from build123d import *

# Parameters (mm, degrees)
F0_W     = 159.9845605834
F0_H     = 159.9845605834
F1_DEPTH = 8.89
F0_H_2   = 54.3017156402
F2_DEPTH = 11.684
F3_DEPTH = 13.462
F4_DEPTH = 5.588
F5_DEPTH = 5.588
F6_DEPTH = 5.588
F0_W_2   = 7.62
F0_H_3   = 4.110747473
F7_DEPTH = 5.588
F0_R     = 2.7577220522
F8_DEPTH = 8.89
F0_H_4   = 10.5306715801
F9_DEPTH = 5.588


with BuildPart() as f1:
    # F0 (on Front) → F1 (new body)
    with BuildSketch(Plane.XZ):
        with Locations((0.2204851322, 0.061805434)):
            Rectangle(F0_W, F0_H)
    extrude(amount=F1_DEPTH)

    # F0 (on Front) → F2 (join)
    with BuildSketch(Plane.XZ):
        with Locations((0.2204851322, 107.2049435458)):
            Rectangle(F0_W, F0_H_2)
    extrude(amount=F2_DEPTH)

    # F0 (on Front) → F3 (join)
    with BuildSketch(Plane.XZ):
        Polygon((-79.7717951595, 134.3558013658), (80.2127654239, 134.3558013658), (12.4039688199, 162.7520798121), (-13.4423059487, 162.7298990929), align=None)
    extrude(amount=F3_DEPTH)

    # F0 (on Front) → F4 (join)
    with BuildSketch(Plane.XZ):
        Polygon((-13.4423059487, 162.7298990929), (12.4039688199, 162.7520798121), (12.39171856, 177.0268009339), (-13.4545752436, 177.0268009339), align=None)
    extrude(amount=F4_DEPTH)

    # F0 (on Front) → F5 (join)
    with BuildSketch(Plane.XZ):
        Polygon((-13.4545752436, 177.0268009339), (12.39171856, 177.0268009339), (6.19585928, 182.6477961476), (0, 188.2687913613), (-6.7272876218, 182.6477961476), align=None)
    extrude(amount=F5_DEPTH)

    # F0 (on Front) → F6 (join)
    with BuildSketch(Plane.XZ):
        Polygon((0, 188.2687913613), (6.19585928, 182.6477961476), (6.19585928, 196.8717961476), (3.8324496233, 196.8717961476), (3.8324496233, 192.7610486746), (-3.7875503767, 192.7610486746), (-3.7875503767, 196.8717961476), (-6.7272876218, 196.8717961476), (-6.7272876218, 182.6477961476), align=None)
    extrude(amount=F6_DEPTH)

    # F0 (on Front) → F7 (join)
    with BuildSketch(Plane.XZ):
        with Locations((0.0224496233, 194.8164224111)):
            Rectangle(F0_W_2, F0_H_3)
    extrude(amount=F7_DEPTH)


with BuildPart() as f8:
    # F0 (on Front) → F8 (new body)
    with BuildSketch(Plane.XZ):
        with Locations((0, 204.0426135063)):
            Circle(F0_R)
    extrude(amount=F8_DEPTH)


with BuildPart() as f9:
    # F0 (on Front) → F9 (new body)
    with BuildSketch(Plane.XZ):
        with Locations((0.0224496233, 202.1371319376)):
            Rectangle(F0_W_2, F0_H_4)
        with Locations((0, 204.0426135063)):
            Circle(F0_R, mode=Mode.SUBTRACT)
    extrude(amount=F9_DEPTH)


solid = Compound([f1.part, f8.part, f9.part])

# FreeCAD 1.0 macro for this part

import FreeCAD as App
import Part
import Sketcher

V = App.Vector
Q = App.Units.Quantity

doc = App.newDocument("Part")
params = doc.addObject("Spreadsheet::Sheet", "Params")
for row, (alias, value) in enumerate([
    ("pad1_length", "0.35 in"),
    ("pad2_length", "0.46 in"),
    ("pad3_length", "0.53 in"),
    ("pad4_length", "0.22 in"),
    ("pad5_length", "0.22 in"),
    ("sketch6_width", "0.3 in"),
    ("sketch6_height", "0.56 in"),
    ("pad6_length", "0.22 in"),
    ("sketch7_width", "0.3 in"),
    ("pad7_length", "0.22 in"),
    ("pad8_length", "0.35 in"),
    ("sketch9_width", "0.3 in"),
    ("pad9_length", "0.22 in"),
], start=1):
    params.set(f"A{row}", alias)
    params.set(f"B{row}", "=" + value)
    params.setAlias(f"B{row}", alias)

body = doc.addObject("PartDesign::Body", "Body")

# Sketch on XZ plane
sketch1 = body.newObject("Sketcher::SketchObject", "Sketch")
sketch1.AttachmentSupport = (doc.getObject("XZ_Plane"), [""])
sketch1.MapMode = "FlatFace"
sketch1.addGeometry([
    Part.LineSegment(V(-80, 80, 0), V(-80, -80, 0)),
    Part.LineSegment(V(-80, -80, 0), V(80, -80, 0)),
    Part.LineSegment(V(80, -80, 0), V(80, 80, 0)),
    Part.LineSegment(V(80, 80, 0), V(-80, 80, 0)),
], False)
sketch1.addConstraint([
    Sketcher.Constraint("Coincident", 0, 2, 1, 1),
    Sketcher.Constraint("Coincident", 1, 2, 2, 1),
    Sketcher.Constraint("Coincident", 2, 2, 3, 1),
    Sketcher.Constraint("Coincident", 3, 2, 0, 1),
    Sketcher.Constraint("Vertical", 0),
    Sketcher.Constraint("Horizontal", 1),
    Sketcher.Constraint("Vertical", 2),
    Sketcher.Constraint("Horizontal", 3),
    Sketcher.Constraint("Equal", 3, 0),
    Sketcher.Constraint("DistanceX", 1, 1, 1, 2, Q("159.984561 mm")),
    Sketcher.Constraint("DistanceX", 0, 2, -1, 1, Q("79.771795 mm")),
    Sketcher.Constraint("DistanceY", 0, 2, -1, 1, Q("79.930475 mm")),
])
pad1 = body.newObject("PartDesign::Pad", "Pad")
pad1.Profile = sketch1
pad1.setExpression("Length", "Params.pad1_length")

# Sketch on XZ plane
sketch2 = body.newObject("Sketcher::SketchObject", "Sketch001")
sketch2.AttachmentSupport = (doc.getObject("XZ_Plane"), [""])
sketch2.MapMode = "FlatFace"
sketch2.addGeometry([
    Part.LineSegment(V(-80, 134, 0), V(-80, 80, 0)),
    Part.LineSegment(V(-80, 80, 0), V(80, 80, 0)),
    Part.LineSegment(V(80, 80, 0), V(80, 134, 0)),
    Part.LineSegment(V(80, 134, 0), V(-80, 134, 0)),
], False)
sketch2.addConstraint([
    Sketcher.Constraint("Coincident", 0, 2, 1, 1),
    Sketcher.Constraint("Coincident", 1, 2, 2, 1),
    Sketcher.Constraint("Coincident", 2, 2, 3, 1),
    Sketcher.Constraint("Coincident", 3, 2, 0, 1),
    Sketcher.Constraint("Vertical", 0),
    Sketcher.Constraint("Horizontal", 1),
    Sketcher.Constraint("Vertical", 2),
    Sketcher.Constraint("Horizontal", 3),
    Sketcher.Constraint("DistanceX", 1, 1, 1, 2, Q("159.984561 mm")),
    Sketcher.Constraint("DistanceY", -1, 1, 2, 2, Q("134.355801 mm")),
    Sketcher.Constraint("DistanceY", 0, 2, 0, 1, Q("54.301716 mm")),
    Sketcher.Constraint("DistanceX", 0, 2, -1, 1, Q("79.771795 mm")),
])
pad2 = body.newObject("PartDesign::Pad", "Pad001")
pad2.Profile = sketch2
pad2.setExpression("Length", "Params.pad2_length")

# Sketch on XZ plane
sketch3 = body.newObject("Sketcher::SketchObject", "Sketch002")
sketch3.AttachmentSupport = (doc.getObject("XZ_Plane"), [""])
sketch3.MapMode = "FlatFace"
sketch3.addGeometry([
    Part.LineSegment(V(-80, 134, 0), V(80, 134, 0)),
    Part.LineSegment(V(80, 134, 0), V(12, 163, 0)),
    Part.LineSegment(V(12, 163, 0), V(-13, 163, 0)),
    Part.LineSegment(V(-13, 163, 0), V(-80, 134, 0)),
], False)
sketch3.addConstraint([
    Sketcher.Constraint("Coincident", 0, 2, 1, 1),
    Sketcher.Constraint("Coincident", 1, 2, 2, 1),
    Sketcher.Constraint("Coincident", 2, 2, 3, 1),
    Sketcher.Constraint("Coincident", 3, 2, 0, 1),
    Sketcher.Constraint("Horizontal", 0),
    Sketcher.Constraint("Distance", 1, Q("73.514499 mm")),
    Sketcher.Constraint("DistanceX", 0, 1, 0, 2, Q("159.984561 mm")),
    Sketcher.Constraint("DistanceY", -1, 1, 0, 2, Q("134.355801 mm")),
    Sketcher.Constraint("DistanceY", -1, 1, 2, 2, Q("162.729899 mm")),
    Sketcher.Constraint("Distance", 3, Q("72.143541 mm")),
    Sketcher.Constraint("DistanceX", -1, 1, 1, 2, Q("12.403969 mm")),
    Sketcher.Constraint("DistanceY", -1, 1, 1, 2, Q("162.75208 mm")),
])
pad3 = body.newObject("PartDesign::Pad", "Pad002")
pad3.Profile = sketch3
pad3.setExpression("Length", "Params.pad3_length")

# Sketch on XZ plane
sketch4 = body.newObject("Sketcher::SketchObject", "Sketch003")
sketch4.AttachmentSupport = (doc.getObject("XZ_Plane"), [""])
sketch4.MapMode = "FlatFace"
sketch4.addGeometry([
    Part.LineSegment(V(-13, 163, 0), V(12, 163, 0)),
    Part.LineSegment(V(12, 163, 0), V(12, 177, 0)),
    Part.LineSegment(V(12, 177, 0), V(-13, 177, 0)),
    Part.LineSegment(V(-13, 177, 0), V(-13, 163, 0)),
], False)
sketch4.addConstraint([
    Sketcher.Constraint("Coincident", 0, 2, 1, 1),
    Sketcher.Constraint("Coincident", 1, 2, 2, 1),
    Sketcher.Constraint("Coincident", 2, 2, 3, 1),
    Sketcher.Constraint("Coincident", 3, 2, 0, 1),
    Sketcher.Constraint("Horizontal", 2),
    Sketcher.Constraint("Perpendicular", 0, 1),
    Sketcher.Constraint("Parallel", 1, 3),
    Sketcher.Constraint("DistanceY", -1, 1, 1, 2, Q("177.026801 mm")),
    Sketcher.Constraint("DistanceY", -1, 1, 3, 2, Q("162.729899 mm")),
    Sketcher.Constraint("DistanceX", 2, 2, 2, 1, Q("25.846294 mm")),
    Sketcher.Constraint("DistanceX", -1, 1, 0, 2, Q("12.403969 mm")),
    Sketcher.Constraint("DistanceY", -1, 1, 0, 2, Q("162.75208 mm")),
])
pad4 = body.newObject("PartDesign::Pad", "Pad003")
pad4.Profile = sketch4
pad4.setExpression("Length", "Params.pad4_length")

# Sketch on XZ plane
sketch5 = body.newObject("Sketcher::SketchObject", "Sketch004")
sketch5.AttachmentSupport = (doc.getObject("XZ_Plane"), [""])
sketch5.MapMode = "FlatFace"
sketch5.addGeometry([
    Part.LineSegment(V(-13, 177, 0), V(12, 177, 0)),
    Part.LineSegment(V(12, 177, 0), V(0, 188, 0)),
    Part.LineSegment(V(0, 188, 0), V(-13, 177, 0)),
], False)
sketch5.addConstraint([
    Sketcher.Constraint("Coincident", 0, 2, 1, 1),
    Sketcher.Constraint("Coincident", 1, 2, 2, 1),
    Sketcher.Constraint("Coincident", 2, 2, 0, 1),
    Sketcher.Constraint("Horizontal", 0),
    Sketcher.Constraint("PointOnObject", 1, 2, -2),
    Sketcher.Constraint("DistanceY", -1, 1, 0, 2, Q("177.026801 mm")),
    Sketcher.Constraint("Distance", 1, Q("16.731319 mm")),
    Sketcher.Constraint("DistanceX", 0, 1, 0, 2, Q("25.846294 mm")),
    Sketcher.Constraint("DistanceX", -1, 1, 0, 2, Q("12.391719 mm")),
])
pad5 = body.newObject("PartDesign::Pad", "Pad004")
pad5.Profile = sketch5
pad5.setExpression("Length", "Params.pad5_length")

# Sketch on XZ plane
sketch6 = body.newObject("Sketcher::SketchObject", "Sketch005")
sketch6.AttachmentSupport = (doc.getObject("XZ_Plane"), [""])
sketch6.MapMode = "FlatFace"
sketch6.addGeometry([
    Part.LineSegment(V(0, 188.3, 0), V(6.2, 182.6, 0)),  # 0
    Part.LineSegment(V(6.2, 182.6, 0), V(6.2, 196.9, 0)),  # 1
    Part.LineSegment(V(6.2, 196.9, 0), V(3.8, 196.9, 0)),  # 2
    Part.LineSegment(V(3.8, 196.9, 0), V(3.8, 192.8, 0)),  # 3
    Part.LineSegment(V(3.8, 192.8, 0), V(-3.8, 192.8, 0)),  # 4
    Part.LineSegment(V(-3.8, 192.8, 0), V(-3.8, 196.9, 0)),  # 5
    Part.LineSegment(V(-3.8, 196.9, 0), V(-6.7, 196.9, 0)),  # 6
    Part.LineSegment(V(-6.7, 196.9, 0), V(-6.7, 182.6, 0)),  # 7
    Part.LineSegment(V(-6.7, 182.6, 0), V(0, 188.3, 0)),  # 8
], False)
sketch6.addConstraint([
    Sketcher.Constraint("Coincident", 0, 2, 1, 1),
    Sketcher.Constraint("Coincident", 1, 2, 2, 1),
    Sketcher.Constraint("Coincident", 2, 2, 3, 1),
    Sketcher.Constraint("Coincident", 3, 2, 4, 1),
    Sketcher.Constraint("Coincident", 4, 2, 5, 1),
    Sketcher.Constraint("Coincident", 5, 2, 6, 1),
    Sketcher.Constraint("Coincident", 6, 2, 7, 1),
    Sketcher.Constraint("Coincident", 7, 2, 8, 1),
    Sketcher.Constraint("Coincident", 8, 2, 0, 1),
    Sketcher.Constraint("Vertical", 1),
    Sketcher.Constraint("Horizontal", 2),
    Sketcher.Constraint("Vertical", 3),
    Sketcher.Constraint("Horizontal", 4),
    Sketcher.Constraint("Vertical", 5),
    Sketcher.Constraint("Horizontal", 6),
    Sketcher.Constraint("Vertical", 7),
    Sketcher.Constraint("PointOnObject", 8, 2, -2),
    Sketcher.Constraint("Horizontal", 2, 2, 5, 2),
    Sketcher.Constraint("Horizontal", 0, 2, 7, 2),
    Sketcher.Constraint("DistanceX", 4, 2, 4, 1, Q("0.3 in")),
    Sketcher.Constraint("DistanceY", 1, 1, 1, 2, Q("0.56 in")),
    Sketcher.Constraint("DistanceX", 2, 2, 2, 1, Q("2.36341 mm")),
    Sketcher.Constraint("Distance", 0, Q("8.36566 mm")),
    Sketcher.Constraint("DistanceX", 6, 2, 6, 1, Q("2.939737 mm")),
    Sketcher.Constraint("DistanceY", 3, 2, 3, 1, Q("4.110747 mm")),
    Sketcher.Constraint("DistanceX", -1, 1, 0, 2, Q("6.195859 mm")),
    Sketcher.Constraint("DistanceY", -1, 1, 3, 2, Q("192.761049 mm")),
])
sketch6.setExpression("Constraints[19]", "Params.sketch6_width")
sketch6.setExpression("Constraints[20]", "Params.sketch6_height")
pad6 = body.newObject("PartDesign::Pad", "Pad005")
pad6.Profile = sketch6
pad6.setExpression("Length", "Params.pad6_length")

# Sketch on XZ plane
sketch7 = body.newObject("Sketcher::SketchObject", "Sketch006")
sketch7.AttachmentSupport = (doc.getObject("XZ_Plane"), [""])
sketch7.MapMode = "FlatFace"
sketch7.addGeometry([
    Part.LineSegment(V(-3.8, 196.9, 0), V(-3.8, 192.8, 0)),
    Part.LineSegment(V(-3.8, 192.8, 0), V(3.8, 192.8, 0)),
    Part.LineSegment(V(3.8, 192.8, 0), V(3.8, 196.9, 0)),
    Part.LineSegment(V(3.8, 196.9, 0), V(-3.8, 196.9, 0)),
], False)
sketch7.addConstraint([
    Sketcher.Constraint("Coincident", 0, 2, 1, 1),
    Sketcher.Constraint("Coincident", 1, 2, 2, 1),
    Sketcher.Constraint("Coincident", 2, 2, 3, 1),
    Sketcher.Constraint("Coincident", 3, 2, 0, 1),
    Sketcher.Constraint("Vertical", 0),
    Sketcher.Constraint("Horizontal", 1),
    Sketcher.Constraint("Vertical", 2),
    Sketcher.Constraint("Horizontal", 3),
    Sketcher.Constraint("DistanceX", 1, 1, 1, 2, Q("0.3 in")),
    Sketcher.Constraint("DistanceY", 0, 2, 0, 1, Q("4.110747 mm")),
    Sketcher.Constraint("DistanceX", 0, 2, -1, 1, Q("3.78755 mm")),
    Sketcher.Constraint("DistanceY", -1, 1, 0, 2, Q("192.761049 mm")),
])
sketch7.setExpression("Constraints[8]", "Params.sketch7_width")
pad7 = body.newObject("PartDesign::Pad", "Pad006")
pad7.Profile = sketch7
pad7.setExpression("Length", "Params.pad7_length")
body2 = doc.addObject("PartDesign::Body", "Body001")

# Sketch on XZ plane
sketch8 = body2.newObject("Sketcher::SketchObject", "Sketch007")
sketch8.AttachmentSupport = (doc.getObject("XZ_Plane001"), [""])
sketch8.MapMode = "FlatFace"
sketch8.addGeometry(Part.Circle(V(0, 204, 0), V(0, 0, 1), 2.8), False)
sketch8.addConstraint([
    Sketcher.Constraint("PointOnObject", 0, 3, -2),
    Sketcher.Constraint("Diameter", 0, Q("5.515444 mm")),
    Sketcher.Constraint("DistanceY", -1, 1, 0, 3, Q("204.042614 mm")),
])
pad8 = body2.newObject("PartDesign::Pad", "Pad007")
pad8.Profile = sketch8
pad8.setExpression("Length", "Params.pad8_length")
body3 = doc.addObject("PartDesign::Body", "Body002")

# Sketch on XZ plane
sketch9 = body3.newObject("Sketcher::SketchObject", "Sketch008")
sketch9.AttachmentSupport = (doc.getObject("XZ_Plane002"), [""])
sketch9.MapMode = "FlatFace"
sketch9.addGeometry([
    Part.LineSegment(V(-3.8, 207.4, 0), V(-3.8, 196.9, 0)),  # 0
    Part.LineSegment(V(-3.8, 196.9, 0), V(3.8, 196.9, 0)),  # 1
    Part.LineSegment(V(3.8, 196.9, 0), V(3.8, 207.4, 0)),  # 2
    Part.LineSegment(V(3.8, 207.4, 0), V(-3.8, 207.4, 0)),  # 3
    Part.Circle(V(0, 204, 0), V(0, 0, 1), 2.8),  # 4
], False)
sketch9.addConstraint([
    Sketcher.Constraint("Coincident", 0, 2, 1, 1),
    Sketcher.Constraint("Coincident", 1, 2, 2, 1),
    Sketcher.Constraint("Coincident", 2, 2, 3, 1),
    Sketcher.Constraint("Coincident", 3, 2, 0, 1),
    Sketcher.Constraint("Vertical", 0),
    Sketcher.Constraint("Horizontal", 1),
    Sketcher.Constraint("Vertical", 2),
    Sketcher.Constraint("Horizontal", 3),
    Sketcher.Constraint("PointOnObject", 4, 3, -2),
    Sketcher.Constraint("DistanceX", 1, 1, 1, 2, Q("0.3 in")),
    Sketcher.Constraint("Diameter", 4, Q("5.515444 mm")),
    Sketcher.Constraint("DistanceY", 0, 2, 0, 1, Q("10.530672 mm")),
    Sketcher.Constraint("DistanceX", 0, 2, -1, 1, Q("3.78755 mm")),
    Sketcher.Constraint("DistanceY", -1, 1, 4, 3, Q("204.042614 mm")),
    Sketcher.Constraint("DistanceY", -1, 1, 0, 2, Q("196.871796 mm")),
])
sketch9.setExpression("Constraints[9]", "Params.sketch9_width")
pad9 = body3.newObject("PartDesign::Pad", "Pad008")
pad9.Profile = sketch9
pad9.setExpression("Length", "Params.pad9_length")

doc.recompute()
